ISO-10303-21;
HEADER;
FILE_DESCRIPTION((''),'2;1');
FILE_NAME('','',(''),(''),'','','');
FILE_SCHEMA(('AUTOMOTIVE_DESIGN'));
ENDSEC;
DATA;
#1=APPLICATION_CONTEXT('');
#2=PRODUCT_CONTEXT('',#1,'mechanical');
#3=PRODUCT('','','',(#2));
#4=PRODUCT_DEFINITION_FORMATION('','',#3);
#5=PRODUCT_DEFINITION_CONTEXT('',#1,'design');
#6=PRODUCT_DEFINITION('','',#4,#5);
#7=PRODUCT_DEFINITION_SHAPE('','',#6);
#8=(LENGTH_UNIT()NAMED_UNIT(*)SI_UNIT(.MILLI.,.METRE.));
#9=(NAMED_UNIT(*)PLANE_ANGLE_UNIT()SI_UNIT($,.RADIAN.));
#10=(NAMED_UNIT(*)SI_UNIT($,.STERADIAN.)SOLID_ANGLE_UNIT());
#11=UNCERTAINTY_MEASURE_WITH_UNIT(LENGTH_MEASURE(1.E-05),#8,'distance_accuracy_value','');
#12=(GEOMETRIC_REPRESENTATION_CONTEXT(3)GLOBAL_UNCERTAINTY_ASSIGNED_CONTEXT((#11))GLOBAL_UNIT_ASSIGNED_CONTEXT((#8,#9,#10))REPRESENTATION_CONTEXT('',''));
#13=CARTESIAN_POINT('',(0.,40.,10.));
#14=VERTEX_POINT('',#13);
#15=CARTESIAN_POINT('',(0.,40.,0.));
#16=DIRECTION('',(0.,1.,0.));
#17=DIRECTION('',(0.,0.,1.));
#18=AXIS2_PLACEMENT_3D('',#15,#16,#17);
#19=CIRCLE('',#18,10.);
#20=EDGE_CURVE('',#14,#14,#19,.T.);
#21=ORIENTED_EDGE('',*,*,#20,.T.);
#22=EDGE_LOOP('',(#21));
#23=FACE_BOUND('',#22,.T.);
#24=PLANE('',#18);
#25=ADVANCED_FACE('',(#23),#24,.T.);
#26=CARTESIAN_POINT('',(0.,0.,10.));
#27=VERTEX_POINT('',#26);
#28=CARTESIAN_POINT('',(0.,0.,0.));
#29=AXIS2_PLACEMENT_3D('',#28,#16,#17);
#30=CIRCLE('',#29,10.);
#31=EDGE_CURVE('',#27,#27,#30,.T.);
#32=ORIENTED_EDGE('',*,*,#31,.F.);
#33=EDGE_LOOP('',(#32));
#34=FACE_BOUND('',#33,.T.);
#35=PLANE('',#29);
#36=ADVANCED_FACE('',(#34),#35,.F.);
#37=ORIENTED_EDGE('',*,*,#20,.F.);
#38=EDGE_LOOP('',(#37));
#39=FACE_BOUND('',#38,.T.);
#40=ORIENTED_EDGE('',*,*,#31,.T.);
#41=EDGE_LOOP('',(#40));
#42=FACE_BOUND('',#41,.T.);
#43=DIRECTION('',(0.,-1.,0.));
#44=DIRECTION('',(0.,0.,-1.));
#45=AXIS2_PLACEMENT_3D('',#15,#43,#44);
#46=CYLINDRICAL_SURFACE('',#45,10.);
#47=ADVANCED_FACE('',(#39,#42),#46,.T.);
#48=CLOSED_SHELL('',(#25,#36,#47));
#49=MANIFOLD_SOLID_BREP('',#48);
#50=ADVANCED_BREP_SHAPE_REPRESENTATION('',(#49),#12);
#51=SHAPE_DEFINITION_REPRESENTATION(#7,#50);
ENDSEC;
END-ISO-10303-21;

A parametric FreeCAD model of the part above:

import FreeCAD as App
import Part
import Sketcher

doc = App.newDocument("Part")
body = doc.addObject("PartDesign::Body", "Body")

sketch1 = body.newObject("Sketcher::SketchObject", "Sketch")
sketch1.AttachmentSupport = (doc.getObject("XZ_Plane"), [""])
sketch1.MapMode = "FlatFace"
sketch1.addGeometry(Part.Circle(App.Vector(0, 0, 0), App.Vector(0, 0, 1), 10), False)
sketch1.addConstraint([
    Sketcher.Constraint("Coincident", 0, 3, -1, 1),
    Sketcher.Constraint("Diameter", 0, 20.0),
])
pad1 = body.newObject("PartDesign::Pad", "Pad")
pad1.Profile = sketch1
pad1.Length = 40
pad1.Reversed = True

doc.recompute()
